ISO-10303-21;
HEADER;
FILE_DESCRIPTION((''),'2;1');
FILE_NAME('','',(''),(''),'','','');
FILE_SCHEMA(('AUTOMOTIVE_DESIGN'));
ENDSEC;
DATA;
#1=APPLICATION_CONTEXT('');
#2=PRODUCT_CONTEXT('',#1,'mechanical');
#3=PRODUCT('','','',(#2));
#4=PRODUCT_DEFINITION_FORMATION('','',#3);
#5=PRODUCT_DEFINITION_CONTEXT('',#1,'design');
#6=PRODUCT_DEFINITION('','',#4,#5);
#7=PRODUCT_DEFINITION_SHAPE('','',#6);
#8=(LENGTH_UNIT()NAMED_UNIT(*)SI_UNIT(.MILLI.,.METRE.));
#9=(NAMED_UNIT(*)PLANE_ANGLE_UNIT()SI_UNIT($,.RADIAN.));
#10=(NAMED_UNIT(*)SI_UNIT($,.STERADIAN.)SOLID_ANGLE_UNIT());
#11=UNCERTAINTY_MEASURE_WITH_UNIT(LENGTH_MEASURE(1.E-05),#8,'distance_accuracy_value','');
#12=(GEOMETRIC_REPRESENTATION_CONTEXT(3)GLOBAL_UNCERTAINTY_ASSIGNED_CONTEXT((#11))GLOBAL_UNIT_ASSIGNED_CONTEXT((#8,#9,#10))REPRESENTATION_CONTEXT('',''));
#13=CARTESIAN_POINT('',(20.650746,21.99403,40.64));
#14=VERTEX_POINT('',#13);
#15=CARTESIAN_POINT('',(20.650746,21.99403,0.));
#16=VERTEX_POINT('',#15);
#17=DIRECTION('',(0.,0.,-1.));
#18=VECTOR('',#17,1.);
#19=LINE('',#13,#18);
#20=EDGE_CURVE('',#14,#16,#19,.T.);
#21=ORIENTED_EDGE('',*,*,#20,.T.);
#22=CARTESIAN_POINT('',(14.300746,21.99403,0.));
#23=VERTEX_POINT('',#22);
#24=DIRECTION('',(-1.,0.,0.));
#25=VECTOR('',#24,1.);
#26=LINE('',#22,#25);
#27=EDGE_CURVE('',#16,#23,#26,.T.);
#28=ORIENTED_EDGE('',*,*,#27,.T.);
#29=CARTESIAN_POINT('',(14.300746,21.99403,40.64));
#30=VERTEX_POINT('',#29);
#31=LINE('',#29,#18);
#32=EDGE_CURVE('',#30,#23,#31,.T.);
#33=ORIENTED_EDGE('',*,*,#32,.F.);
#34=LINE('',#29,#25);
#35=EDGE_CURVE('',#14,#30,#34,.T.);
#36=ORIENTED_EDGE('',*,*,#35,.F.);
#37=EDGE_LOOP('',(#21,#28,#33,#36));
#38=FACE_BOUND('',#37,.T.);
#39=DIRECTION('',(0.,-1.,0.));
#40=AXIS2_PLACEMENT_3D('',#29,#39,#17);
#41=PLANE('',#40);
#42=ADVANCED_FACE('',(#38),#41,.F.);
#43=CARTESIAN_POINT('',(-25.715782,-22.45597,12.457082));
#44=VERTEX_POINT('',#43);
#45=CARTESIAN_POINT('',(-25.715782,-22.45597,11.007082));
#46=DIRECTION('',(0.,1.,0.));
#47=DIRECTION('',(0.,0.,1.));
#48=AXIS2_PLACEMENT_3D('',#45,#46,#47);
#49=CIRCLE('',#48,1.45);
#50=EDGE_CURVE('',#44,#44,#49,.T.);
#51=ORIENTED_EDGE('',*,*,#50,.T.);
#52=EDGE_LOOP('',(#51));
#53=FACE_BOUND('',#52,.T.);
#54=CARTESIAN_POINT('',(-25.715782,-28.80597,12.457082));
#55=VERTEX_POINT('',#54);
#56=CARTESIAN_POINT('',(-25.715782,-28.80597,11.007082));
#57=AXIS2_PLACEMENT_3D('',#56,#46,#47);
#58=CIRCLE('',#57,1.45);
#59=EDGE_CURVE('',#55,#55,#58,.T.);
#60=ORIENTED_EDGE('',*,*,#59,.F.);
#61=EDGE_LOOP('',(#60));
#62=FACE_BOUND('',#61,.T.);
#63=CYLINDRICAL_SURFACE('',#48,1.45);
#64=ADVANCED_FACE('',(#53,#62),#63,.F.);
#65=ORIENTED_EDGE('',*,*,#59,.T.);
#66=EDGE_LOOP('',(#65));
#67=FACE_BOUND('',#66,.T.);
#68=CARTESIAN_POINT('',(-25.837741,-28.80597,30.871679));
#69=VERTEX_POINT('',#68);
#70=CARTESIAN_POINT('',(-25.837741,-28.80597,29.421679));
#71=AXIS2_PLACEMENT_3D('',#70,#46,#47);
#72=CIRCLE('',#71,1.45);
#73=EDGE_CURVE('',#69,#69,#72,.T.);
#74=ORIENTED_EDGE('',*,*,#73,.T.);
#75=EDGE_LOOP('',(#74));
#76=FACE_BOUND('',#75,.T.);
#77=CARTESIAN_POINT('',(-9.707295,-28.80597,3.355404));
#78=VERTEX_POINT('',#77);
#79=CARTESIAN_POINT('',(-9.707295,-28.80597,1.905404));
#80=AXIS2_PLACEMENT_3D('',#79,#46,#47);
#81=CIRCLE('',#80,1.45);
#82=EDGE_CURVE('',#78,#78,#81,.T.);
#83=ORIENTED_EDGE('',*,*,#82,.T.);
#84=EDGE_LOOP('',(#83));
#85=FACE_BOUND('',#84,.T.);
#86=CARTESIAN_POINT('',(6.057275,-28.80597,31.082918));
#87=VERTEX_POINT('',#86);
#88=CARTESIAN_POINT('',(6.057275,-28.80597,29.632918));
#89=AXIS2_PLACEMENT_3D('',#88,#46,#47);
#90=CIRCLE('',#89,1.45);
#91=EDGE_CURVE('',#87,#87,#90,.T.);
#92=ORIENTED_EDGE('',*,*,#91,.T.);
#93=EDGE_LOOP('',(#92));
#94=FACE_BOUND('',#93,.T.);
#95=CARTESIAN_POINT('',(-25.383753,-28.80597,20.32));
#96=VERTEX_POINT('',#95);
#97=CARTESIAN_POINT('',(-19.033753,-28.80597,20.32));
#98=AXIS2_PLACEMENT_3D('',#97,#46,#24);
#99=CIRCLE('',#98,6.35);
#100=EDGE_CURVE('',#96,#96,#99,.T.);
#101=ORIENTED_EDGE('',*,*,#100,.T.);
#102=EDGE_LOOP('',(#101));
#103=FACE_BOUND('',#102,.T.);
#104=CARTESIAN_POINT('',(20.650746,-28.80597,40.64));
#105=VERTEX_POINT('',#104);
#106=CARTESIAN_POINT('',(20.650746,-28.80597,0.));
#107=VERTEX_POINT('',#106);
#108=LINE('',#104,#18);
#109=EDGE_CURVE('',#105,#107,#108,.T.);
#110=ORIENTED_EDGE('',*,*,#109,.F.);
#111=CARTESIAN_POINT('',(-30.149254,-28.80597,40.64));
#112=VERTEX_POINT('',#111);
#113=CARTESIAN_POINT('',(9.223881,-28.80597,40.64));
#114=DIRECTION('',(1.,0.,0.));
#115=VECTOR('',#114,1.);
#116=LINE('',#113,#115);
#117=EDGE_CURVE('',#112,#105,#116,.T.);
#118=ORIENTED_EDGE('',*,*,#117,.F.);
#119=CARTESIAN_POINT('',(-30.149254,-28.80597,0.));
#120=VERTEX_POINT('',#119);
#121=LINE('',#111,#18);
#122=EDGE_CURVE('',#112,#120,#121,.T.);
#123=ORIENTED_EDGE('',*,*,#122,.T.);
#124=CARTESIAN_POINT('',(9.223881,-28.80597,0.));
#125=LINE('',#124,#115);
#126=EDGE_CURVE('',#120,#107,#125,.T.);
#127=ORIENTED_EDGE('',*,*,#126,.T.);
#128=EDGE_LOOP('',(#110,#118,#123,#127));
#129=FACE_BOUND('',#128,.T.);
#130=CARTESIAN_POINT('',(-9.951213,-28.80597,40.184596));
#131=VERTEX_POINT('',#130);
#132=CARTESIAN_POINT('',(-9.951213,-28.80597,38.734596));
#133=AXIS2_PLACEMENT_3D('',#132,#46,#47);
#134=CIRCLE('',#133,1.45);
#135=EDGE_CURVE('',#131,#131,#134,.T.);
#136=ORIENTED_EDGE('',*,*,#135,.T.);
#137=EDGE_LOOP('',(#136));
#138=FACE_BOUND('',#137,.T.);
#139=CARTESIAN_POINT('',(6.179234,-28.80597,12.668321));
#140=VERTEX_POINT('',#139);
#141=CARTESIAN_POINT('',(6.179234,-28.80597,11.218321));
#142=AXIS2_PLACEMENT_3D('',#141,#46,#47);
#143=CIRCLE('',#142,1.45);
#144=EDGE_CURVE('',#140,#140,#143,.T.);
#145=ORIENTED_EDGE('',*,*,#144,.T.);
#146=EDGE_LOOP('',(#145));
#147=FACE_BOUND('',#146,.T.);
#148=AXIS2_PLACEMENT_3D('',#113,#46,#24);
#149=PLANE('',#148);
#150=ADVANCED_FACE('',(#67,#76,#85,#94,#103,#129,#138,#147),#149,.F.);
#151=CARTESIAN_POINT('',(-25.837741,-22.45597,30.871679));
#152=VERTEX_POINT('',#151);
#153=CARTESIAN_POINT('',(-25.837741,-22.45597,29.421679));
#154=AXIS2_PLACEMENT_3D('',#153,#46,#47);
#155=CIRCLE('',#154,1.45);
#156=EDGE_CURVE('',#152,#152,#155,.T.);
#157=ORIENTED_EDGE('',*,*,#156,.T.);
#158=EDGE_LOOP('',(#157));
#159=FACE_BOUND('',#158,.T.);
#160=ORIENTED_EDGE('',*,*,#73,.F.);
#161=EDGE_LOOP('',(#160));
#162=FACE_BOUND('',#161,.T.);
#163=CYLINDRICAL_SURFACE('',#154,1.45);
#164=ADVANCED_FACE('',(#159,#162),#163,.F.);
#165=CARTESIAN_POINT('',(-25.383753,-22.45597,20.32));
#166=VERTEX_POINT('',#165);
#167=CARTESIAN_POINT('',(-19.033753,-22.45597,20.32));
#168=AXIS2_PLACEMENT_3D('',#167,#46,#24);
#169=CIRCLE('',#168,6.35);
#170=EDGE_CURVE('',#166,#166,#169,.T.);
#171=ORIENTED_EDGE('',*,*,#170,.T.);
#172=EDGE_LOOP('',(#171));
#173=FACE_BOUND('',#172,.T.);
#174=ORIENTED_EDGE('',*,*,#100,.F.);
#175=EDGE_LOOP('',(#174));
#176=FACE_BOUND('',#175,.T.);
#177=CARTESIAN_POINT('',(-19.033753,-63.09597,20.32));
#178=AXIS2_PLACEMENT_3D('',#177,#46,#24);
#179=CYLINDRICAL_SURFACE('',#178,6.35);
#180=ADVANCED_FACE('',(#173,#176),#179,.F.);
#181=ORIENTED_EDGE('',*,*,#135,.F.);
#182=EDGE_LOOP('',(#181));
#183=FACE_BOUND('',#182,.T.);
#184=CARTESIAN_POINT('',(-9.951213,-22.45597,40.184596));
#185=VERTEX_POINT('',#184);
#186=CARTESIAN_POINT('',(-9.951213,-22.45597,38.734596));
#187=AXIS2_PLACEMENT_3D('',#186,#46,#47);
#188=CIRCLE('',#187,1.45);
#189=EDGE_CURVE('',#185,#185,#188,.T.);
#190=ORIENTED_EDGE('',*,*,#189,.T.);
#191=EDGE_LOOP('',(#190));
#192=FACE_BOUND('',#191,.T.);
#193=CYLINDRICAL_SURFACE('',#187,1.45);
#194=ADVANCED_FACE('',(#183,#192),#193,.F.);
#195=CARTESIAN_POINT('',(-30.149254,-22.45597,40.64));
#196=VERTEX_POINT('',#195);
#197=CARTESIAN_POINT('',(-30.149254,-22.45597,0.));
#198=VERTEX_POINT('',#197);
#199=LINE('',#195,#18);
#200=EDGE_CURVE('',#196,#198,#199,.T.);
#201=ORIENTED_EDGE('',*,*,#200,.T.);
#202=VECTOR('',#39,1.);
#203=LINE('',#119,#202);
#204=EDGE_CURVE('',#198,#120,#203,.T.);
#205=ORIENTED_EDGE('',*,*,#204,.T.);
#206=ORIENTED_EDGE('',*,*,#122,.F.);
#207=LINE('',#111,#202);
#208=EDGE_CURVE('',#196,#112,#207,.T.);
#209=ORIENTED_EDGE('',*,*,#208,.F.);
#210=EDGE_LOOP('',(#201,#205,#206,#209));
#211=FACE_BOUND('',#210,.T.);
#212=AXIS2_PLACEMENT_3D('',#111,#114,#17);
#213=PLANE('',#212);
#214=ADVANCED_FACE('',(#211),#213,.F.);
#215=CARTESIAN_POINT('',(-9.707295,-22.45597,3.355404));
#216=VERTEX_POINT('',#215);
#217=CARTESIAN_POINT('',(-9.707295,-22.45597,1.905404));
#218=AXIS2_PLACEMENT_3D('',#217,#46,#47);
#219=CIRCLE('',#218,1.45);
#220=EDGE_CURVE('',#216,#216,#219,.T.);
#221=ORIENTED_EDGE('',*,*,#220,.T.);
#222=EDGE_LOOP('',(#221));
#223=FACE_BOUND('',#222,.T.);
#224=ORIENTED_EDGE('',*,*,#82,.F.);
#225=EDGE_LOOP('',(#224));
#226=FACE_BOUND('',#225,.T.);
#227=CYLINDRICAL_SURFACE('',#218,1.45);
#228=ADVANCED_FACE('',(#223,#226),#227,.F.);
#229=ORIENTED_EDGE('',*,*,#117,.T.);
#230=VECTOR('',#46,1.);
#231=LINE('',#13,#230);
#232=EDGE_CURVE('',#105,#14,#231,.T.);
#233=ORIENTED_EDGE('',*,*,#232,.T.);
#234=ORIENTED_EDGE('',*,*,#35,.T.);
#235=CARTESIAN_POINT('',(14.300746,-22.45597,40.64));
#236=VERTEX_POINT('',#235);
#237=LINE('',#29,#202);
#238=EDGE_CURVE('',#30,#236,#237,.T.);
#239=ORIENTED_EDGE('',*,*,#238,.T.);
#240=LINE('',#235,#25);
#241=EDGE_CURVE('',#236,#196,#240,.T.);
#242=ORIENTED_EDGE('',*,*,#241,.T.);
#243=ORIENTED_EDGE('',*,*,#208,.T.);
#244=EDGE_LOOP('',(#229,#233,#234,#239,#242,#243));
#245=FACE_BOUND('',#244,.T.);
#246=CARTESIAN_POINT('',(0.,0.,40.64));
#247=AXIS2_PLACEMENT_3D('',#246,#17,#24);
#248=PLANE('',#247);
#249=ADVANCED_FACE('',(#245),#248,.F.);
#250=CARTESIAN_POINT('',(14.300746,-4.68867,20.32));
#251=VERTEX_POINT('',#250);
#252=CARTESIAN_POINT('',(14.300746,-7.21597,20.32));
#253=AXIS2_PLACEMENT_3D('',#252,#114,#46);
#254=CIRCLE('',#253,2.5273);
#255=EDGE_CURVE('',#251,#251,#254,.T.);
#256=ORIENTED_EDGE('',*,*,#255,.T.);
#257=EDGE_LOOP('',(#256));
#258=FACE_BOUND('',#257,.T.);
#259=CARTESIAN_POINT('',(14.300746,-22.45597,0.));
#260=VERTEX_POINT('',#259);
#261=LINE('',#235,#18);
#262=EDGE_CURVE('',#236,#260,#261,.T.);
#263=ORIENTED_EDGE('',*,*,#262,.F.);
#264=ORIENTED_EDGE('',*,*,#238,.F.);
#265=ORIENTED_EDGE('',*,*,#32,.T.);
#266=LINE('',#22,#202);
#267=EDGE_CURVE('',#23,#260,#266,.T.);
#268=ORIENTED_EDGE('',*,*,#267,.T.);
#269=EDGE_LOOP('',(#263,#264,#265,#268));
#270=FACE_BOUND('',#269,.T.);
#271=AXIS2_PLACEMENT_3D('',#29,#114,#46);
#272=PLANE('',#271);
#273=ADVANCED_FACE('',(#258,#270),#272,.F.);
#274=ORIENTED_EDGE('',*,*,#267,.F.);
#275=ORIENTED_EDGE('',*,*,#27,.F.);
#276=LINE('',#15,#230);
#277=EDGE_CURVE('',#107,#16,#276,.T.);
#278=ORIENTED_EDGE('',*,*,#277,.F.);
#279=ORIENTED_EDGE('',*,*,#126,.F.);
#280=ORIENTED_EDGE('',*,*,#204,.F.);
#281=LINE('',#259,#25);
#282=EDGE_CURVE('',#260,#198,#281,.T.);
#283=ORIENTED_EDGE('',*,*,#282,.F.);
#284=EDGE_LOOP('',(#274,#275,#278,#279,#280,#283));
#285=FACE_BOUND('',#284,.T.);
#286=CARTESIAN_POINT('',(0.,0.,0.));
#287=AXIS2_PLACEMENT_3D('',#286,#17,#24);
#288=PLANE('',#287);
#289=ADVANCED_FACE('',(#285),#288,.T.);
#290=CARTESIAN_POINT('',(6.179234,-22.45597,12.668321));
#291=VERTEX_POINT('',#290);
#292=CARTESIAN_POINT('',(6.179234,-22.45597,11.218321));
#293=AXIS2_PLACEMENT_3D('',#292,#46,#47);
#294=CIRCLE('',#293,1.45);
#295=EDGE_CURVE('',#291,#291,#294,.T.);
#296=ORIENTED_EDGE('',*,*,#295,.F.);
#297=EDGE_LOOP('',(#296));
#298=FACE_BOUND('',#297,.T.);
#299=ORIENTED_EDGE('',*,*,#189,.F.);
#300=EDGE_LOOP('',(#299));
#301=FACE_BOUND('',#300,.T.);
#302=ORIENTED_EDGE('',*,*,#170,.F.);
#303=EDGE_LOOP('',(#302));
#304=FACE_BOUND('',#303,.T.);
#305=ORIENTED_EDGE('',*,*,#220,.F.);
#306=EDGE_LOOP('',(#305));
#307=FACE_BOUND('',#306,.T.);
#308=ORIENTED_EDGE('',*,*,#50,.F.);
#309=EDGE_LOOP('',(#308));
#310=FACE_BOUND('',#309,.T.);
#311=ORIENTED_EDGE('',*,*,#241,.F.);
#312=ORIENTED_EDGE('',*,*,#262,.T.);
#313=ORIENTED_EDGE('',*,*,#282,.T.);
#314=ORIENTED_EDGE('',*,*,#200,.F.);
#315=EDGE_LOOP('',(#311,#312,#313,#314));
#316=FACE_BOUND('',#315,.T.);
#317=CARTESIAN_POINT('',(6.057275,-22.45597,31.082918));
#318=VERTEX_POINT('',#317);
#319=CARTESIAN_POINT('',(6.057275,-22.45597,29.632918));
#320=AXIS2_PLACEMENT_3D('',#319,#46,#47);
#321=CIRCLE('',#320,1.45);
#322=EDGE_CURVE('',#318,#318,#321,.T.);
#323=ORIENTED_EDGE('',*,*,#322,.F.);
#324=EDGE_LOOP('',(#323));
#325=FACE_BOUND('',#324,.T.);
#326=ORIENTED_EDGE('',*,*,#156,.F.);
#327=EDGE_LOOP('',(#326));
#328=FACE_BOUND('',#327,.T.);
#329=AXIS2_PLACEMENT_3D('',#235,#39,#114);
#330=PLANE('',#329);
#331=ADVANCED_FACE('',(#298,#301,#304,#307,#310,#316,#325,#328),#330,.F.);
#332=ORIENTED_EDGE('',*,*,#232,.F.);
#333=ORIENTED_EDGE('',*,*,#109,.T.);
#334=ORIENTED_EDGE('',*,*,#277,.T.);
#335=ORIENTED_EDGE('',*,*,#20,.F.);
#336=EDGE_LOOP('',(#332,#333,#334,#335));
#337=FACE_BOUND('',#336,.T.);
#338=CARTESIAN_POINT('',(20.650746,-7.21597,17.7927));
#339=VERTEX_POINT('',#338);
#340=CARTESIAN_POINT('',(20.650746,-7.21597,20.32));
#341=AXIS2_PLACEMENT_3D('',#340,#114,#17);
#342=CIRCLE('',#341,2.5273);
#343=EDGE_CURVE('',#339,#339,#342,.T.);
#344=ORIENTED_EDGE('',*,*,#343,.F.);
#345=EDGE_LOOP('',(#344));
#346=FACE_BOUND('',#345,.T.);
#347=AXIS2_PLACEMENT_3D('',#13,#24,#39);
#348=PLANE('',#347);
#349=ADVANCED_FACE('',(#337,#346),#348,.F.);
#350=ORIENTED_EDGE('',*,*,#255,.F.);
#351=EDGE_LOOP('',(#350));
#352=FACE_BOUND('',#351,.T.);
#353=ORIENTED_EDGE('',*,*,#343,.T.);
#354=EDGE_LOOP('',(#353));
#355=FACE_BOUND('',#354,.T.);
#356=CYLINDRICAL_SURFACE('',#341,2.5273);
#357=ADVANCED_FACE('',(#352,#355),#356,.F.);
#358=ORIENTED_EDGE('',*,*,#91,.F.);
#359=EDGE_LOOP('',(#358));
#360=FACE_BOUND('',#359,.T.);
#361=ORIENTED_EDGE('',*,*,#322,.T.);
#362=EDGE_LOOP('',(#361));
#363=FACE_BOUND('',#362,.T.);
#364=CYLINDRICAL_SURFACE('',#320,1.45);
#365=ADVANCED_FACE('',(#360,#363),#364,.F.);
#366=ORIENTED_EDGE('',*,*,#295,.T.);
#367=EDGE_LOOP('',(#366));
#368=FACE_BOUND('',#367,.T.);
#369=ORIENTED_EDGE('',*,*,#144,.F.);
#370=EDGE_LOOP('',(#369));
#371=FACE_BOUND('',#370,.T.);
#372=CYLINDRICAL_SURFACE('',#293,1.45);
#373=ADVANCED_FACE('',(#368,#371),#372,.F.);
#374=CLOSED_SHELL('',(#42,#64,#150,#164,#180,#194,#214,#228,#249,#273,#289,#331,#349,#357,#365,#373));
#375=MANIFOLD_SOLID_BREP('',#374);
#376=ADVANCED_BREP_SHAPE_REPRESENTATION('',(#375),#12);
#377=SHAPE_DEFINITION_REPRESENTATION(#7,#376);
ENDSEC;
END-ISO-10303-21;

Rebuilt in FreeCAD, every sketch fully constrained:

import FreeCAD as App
import Part
import Sketcher
from FreeCAD import Vector
Q = App.Units.Quantity

doc = App.newDocument("Part")
body = doc.addObject("PartDesign::Body", "Body")

sketch1 = doc.addObject("Sketcher::SketchObject", "Sketch")
body.addObject(sketch1)
sketch1.AttachmentSupport = (doc.XY_Plane, [""])
sketch1.MapMode = "FlatFace"
sketch1.addGeometry(Part.LineSegment(Vector(21, 22, 0), Vector(14, 22, 0)), False)
sketch1.addGeometry(Part.LineSegment(Vector(14, 22, 0), Vector(14, -22, 0)), False)
sketch1.addGeometry(Part.LineSegment(Vector(14, -22, 0), Vector(-30, -22, 0)), False)
sketch1.addGeometry(Part.LineSegment(Vector(-30, -22, 0), Vector(-30, -29, 0)), False)
sketch1.addGeometry(Part.LineSegment(Vector(-30, -29, 0), Vector(21, -29, 0)), False)
sketch1.addGeometry(Part.LineSegment(Vector(21, -29, 0), Vector(21, 22, 0)), False)
sketch1.addConstraint(Sketcher.Constraint("Coincident", 0, 2, 1, 1))
sketch1.addConstraint(Sketcher.Constraint("Coincident", 1, 2, 2, 1))
sketch1.addConstraint(Sketcher.Constraint("Coincident", 2, 2, 3, 1))
sketch1.addConstraint(Sketcher.Constraint("Coincident", 3, 2, 4, 1))
sketch1.addConstraint(Sketcher.Constraint("Coincident", 4, 2, 5, 1))
sketch1.addConstraint(Sketcher.Constraint("Coincident", 5, 2, 0, 1))
sketch1.addConstraint(Sketcher.Constraint("Horizontal", 0))
sketch1.addConstraint(Sketcher.Constraint("Vertical", 1))
sketch1.addConstraint(Sketcher.Constraint("Horizontal", 2))
sketch1.addConstraint(Sketcher.Constraint("Vertical", 3))
sketch1.addConstraint(Sketcher.Constraint("Horizontal", 4))
sketch1.addConstraint(Sketcher.Constraint("Vertical", 5))
sketch1.addConstraint(Sketcher.Constraint("Equal", 2, 1))
sketch1.addConstraint(Sketcher.Constraint("Equal", 0, 3))
sketch1.addConstraint(Sketcher.Constraint("DistanceX", 4, 1, 4, 2, Q("2 in")))
sketch1.addConstraint(Sketcher.Constraint("DistanceX", 0, 2, 0, 1, Q("0.25 in")))
sketch1.addConstraint(Sketcher.Constraint("DistanceY", -1, 1, 0, 2, Q("21.99403 mm")))
sketch1.addConstraint(Sketcher.Constraint("DistanceX", -1, 1, 0, 2, Q("14.300746 mm")))
pad1 = doc.addObject("PartDesign::Pad", "Pad")
body.addObject(pad1)
pad1.Profile = sketch1
pad1.Length = Q("1.6 in")

sketch2 = doc.addObject("Sketcher::SketchObject", "Sketch001")
body.addObject(sketch2)
sketch2.AttachmentSupport = (doc.YZ_Plane, [""])
sketch2.MapMode = "FlatFace"
sketch2.AttachmentOffset = App.Placement(Vector(0, 0, 20.650746), App.Rotation())
sketch2.addGeometry(Part.Circle(Vector(-7.2, 20.3, 0), Vector(0, 0, 1), 2.5), False)
sketch2.addConstraint(Sketcher.Constraint("Diameter", 0, Q("0.199 in")))
sketch2.addConstraint(Sketcher.Constraint("DistanceY", -1, 1, 0, 3, Q("0.8 in")))
sketch2.addConstraint(Sketcher.Constraint("DistanceX", 0, 3, -1, 1, Q("7.21597 mm")))
doc.recompute()
hole = doc.addObject("PartDesign::Hole", "Hole")
body.addObject(hole)
hole.Profile = sketch2
hole.ThreadType = "None"
hole.Diameter = Q("0.199 in")
hole.DepthType = "ThroughAll"

sketch3 = doc.addObject("Sketcher::SketchObject", "Sketch002")
body.addObject(sketch3)
sketch3.AttachmentSupport = (doc.XZ_Plane, [""])
sketch3.MapMode = "FlatFace"
sketch3.AttachmentOffset = App.Placement(Vector(0, 0, 22.45597), App.Rotation())
sketch3.addGeometry(Part.Circle(Vector(-19, 20, 0), Vector(0, 0, 1), 6), False)
sketch3.addConstraint(Sketcher.Constraint("Diameter", 0, Q("0.5 in")))
sketch3.addConstraint(Sketcher.Constraint("DistanceY", -1, 1, 0, 3, Q("0.8 in")))
sketch3.addConstraint(Sketcher.Constraint("DistanceX", 0, 3, -1, 1, Q("19.033753 mm")))
pocket1 = doc.addObject("PartDesign::Pocket", "Pocket")
body.addObject(pocket1)
pocket1.Profile = sketch3
pocket1.Length = Q("1.6 in")
pocket1.Reversed = True

sketch4 = doc.addObject("Sketcher::SketchObject", "Sketch003")
body.addObject(sketch4)
sketch4.AttachmentSupport = (doc.XZ_Plane, [""])
sketch4.MapMode = "FlatFace"
sketch4.AttachmentOffset = App.Placement(Vector(0, 0, 22.45597), App.Rotation())
sketch4.addGeometry(Part.Circle(Vector(-25.7, 11, 0), Vector(0, 0, 1), 1.4), False)
sketch4.addGeometry(Part.Circle(Vector(-25.8, 29.4, 0), Vector(0, 0, 1), 1.4), False)
sketch4.addGeometry(Part.Circle(Vector(-10, 38.7, 0), Vector(0, 0, 1), 1.4), False)
sketch4.addGeometry(Part.Circle(Vector(-9.7, 1.9, 0), Vector(0, 0, 1), 1.4), False)
sketch4.addGeometry(Part.Circle(Vector(6.2, 11.2, 0), Vector(0, 0, 1), 1.4), False)
sketch4.addGeometry(Part.Circle(Vector(6.1, 29.6, 0), Vector(0, 0, 1), 1.4), False)
sketch4.addConstraint(Sketcher.Constraint("Equal", 0, 1))
sketch4.addConstraint(Sketcher.Constraint("Equal", 1, 2))
sketch4.addConstraint(Sketcher.Constraint("Equal", 2, 3))
sketch4.addConstraint(Sketcher.Constraint("Equal", 3, 4))
sketch4.addConstraint(Sketcher.Constraint("Equal", 4, 5))
sketch4.addConstraint(Sketcher.Constraint("Diameter", 0, Q("2.9 mm")))
sketch4.addConstraint(Sketcher.Constraint("DistanceX", 1, 3, -1, 1, Q("25.837741 mm")))
sketch4.addConstraint(Sketcher.Constraint("DistanceY", -1, 1, 1, 3, Q("29.421679 mm")))
sketch4.addConstraint(Sketcher.Constraint("DistanceY", -1, 1, 4, 3, Q("11.218321 mm")))
sketch4.addConstraint(Sketcher.Constraint("DistanceX", 1, 3, 0, 3, Q("0.121959 mm")))
sketch4.addConstraint(Sketcher.Constraint("DistanceX", 1, 3, 2, 3, Q("15.886529 mm")))
sketch4.addConstraint(Sketcher.Constraint("DistanceY", 3, 3, 0, 3, Q("9.101679 mm")))
sketch4.addConstraint(Sketcher.Constraint("DistanceX", 3, 3, 4, 3, Q("15.886529 mm")))
sketch4.addConstraint(Sketcher.Constraint("DistanceY", 0, 3, 4, 3, Q("0.211239 mm")))
sketch4.addConstraint(Sketcher.Constraint("DistanceY", 5, 3, 2, 3, Q("9.101679 mm")))
sketch4.addConstraint(Sketcher.Constraint("DistanceX", 5, 3, 4, 3, Q("0.121959 mm")))
sketch4.addConstraint(Sketcher.Constraint("DistanceY", 1, 3, 5, 3, Q("0.211239 mm")))
sketch4.addConstraint(Sketcher.Constraint("DistanceX", 3, 3, -1, 1, Q("9.707295 mm")))
doc.recompute()
hole2 = doc.addObject("PartDesign::Hole", "Hole001")
body.addObject(hole2)
hole2.Profile = sketch4
hole2.ThreadType = "None"
hole2.Diameter = 2.9
hole2.DepthType = "ThroughAll"
hole2.Reversed = True

doc.recompute()
